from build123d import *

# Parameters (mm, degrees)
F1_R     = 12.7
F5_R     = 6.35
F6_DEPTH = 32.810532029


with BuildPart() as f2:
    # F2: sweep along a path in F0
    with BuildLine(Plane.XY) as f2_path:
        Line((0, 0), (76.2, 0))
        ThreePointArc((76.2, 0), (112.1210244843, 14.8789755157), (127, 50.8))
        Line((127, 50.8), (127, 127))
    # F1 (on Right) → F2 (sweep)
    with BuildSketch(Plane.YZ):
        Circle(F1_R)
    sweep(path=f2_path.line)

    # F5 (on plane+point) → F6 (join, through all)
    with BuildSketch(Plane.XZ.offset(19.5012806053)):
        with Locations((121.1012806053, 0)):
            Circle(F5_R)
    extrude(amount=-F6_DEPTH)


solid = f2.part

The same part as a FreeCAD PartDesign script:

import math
import FreeCAD as App
import Part
import Sketcher

V = App.Vector
Q = App.Units.Quantity

doc = App.newDocument("Part")
body = doc.addObject("PartDesign::Body", "Body")

sketch1 = body.newObject("Sketcher::SketchObject", "Sketch")
sketch1.AttachmentSupport = (doc.getObject("YZ_Plane"), [""])
sketch1.MapMode = "FlatFace"
sketch1.addGeometry(Part.Circle(V(0, 0, 0), V(0, 0, 1), 13), False)
sketch1.addConstraint([
    Sketcher.Constraint("Coincident", 0, 3, -1, 1),
    Sketcher.Constraint("Diameter", 0, Q("1 in")),
])

sketch2 = body.newObject("Sketcher::SketchObject", "Sketch001")
sketch2.AttachmentSupport = (doc.getObject("XY_Plane"), [""])
sketch2.MapMode = "FlatFace"
sketch2.addGeometry([
    Part.LineSegment(V(0, 0, 0), V(76, 0, 0)),
    Part.ArcOfCircle(Part.Circle(V(76, 51, 0), V(0, 0, 1), 51), math.radians(-90), math.radians(0)),
    Part.LineSegment(V(127, 51, 0), V(127, 127, 0)),
], False)
sketch2.addConstraint([
    Sketcher.Constraint("Tangent", 0, 2, 1, 1),
    Sketcher.Constraint("Tangent", 1, 2, 2, 1),
    Sketcher.Constraint("Horizontal", 0),
    Sketcher.Constraint("Vertical", 2),
    Sketcher.Constraint("Coincident", 0, 1, -1, 1),
    Sketcher.Constraint("Equal", 0, 2),
    Sketcher.Constraint("Radius", 1, Q("2 in")),
    Sketcher.Constraint("DistanceX", 0, 1, 0, 2, Q("3 in")),
])
doc.recompute()

additivepipe = body.newObject("PartDesign::AdditivePipe", "AdditivePipe")
additivepipe.Profile = sketch1
additivepipe.Spine = (sketch2, ["Edge1", "Edge2", "Edge3"])

sketch3 = body.newObject("Sketcher::SketchObject", "Sketch002")
sketch3.AttachmentSupport = (doc.getObject("XZ_Plane"), [""])
sketch3.MapMode = "FlatFace"
sketch3.AttachmentOffset = App.Placement(V(0, 0, 19.501281), App.Rotation())
sketch3.addGeometry(Part.Circle(V(121, 0, 0), V(0, 0, 1), 6), False)
sketch3.addConstraint([
    Sketcher.Constraint("PointOnObject", 0, 3, -1),
    Sketcher.Constraint("Diameter", 0, Q("0.5 in")),
    Sketcher.Constraint("DistanceX", -1, 1, 0, 3, Q("121.101281 mm")),
])
pad1 = body.newObject("PartDesign::Pad", "Pad")
pad1.Profile = sketch3
pad1.Type = "UpToLast"
pad1.Reversed = True

doc.recompute()
